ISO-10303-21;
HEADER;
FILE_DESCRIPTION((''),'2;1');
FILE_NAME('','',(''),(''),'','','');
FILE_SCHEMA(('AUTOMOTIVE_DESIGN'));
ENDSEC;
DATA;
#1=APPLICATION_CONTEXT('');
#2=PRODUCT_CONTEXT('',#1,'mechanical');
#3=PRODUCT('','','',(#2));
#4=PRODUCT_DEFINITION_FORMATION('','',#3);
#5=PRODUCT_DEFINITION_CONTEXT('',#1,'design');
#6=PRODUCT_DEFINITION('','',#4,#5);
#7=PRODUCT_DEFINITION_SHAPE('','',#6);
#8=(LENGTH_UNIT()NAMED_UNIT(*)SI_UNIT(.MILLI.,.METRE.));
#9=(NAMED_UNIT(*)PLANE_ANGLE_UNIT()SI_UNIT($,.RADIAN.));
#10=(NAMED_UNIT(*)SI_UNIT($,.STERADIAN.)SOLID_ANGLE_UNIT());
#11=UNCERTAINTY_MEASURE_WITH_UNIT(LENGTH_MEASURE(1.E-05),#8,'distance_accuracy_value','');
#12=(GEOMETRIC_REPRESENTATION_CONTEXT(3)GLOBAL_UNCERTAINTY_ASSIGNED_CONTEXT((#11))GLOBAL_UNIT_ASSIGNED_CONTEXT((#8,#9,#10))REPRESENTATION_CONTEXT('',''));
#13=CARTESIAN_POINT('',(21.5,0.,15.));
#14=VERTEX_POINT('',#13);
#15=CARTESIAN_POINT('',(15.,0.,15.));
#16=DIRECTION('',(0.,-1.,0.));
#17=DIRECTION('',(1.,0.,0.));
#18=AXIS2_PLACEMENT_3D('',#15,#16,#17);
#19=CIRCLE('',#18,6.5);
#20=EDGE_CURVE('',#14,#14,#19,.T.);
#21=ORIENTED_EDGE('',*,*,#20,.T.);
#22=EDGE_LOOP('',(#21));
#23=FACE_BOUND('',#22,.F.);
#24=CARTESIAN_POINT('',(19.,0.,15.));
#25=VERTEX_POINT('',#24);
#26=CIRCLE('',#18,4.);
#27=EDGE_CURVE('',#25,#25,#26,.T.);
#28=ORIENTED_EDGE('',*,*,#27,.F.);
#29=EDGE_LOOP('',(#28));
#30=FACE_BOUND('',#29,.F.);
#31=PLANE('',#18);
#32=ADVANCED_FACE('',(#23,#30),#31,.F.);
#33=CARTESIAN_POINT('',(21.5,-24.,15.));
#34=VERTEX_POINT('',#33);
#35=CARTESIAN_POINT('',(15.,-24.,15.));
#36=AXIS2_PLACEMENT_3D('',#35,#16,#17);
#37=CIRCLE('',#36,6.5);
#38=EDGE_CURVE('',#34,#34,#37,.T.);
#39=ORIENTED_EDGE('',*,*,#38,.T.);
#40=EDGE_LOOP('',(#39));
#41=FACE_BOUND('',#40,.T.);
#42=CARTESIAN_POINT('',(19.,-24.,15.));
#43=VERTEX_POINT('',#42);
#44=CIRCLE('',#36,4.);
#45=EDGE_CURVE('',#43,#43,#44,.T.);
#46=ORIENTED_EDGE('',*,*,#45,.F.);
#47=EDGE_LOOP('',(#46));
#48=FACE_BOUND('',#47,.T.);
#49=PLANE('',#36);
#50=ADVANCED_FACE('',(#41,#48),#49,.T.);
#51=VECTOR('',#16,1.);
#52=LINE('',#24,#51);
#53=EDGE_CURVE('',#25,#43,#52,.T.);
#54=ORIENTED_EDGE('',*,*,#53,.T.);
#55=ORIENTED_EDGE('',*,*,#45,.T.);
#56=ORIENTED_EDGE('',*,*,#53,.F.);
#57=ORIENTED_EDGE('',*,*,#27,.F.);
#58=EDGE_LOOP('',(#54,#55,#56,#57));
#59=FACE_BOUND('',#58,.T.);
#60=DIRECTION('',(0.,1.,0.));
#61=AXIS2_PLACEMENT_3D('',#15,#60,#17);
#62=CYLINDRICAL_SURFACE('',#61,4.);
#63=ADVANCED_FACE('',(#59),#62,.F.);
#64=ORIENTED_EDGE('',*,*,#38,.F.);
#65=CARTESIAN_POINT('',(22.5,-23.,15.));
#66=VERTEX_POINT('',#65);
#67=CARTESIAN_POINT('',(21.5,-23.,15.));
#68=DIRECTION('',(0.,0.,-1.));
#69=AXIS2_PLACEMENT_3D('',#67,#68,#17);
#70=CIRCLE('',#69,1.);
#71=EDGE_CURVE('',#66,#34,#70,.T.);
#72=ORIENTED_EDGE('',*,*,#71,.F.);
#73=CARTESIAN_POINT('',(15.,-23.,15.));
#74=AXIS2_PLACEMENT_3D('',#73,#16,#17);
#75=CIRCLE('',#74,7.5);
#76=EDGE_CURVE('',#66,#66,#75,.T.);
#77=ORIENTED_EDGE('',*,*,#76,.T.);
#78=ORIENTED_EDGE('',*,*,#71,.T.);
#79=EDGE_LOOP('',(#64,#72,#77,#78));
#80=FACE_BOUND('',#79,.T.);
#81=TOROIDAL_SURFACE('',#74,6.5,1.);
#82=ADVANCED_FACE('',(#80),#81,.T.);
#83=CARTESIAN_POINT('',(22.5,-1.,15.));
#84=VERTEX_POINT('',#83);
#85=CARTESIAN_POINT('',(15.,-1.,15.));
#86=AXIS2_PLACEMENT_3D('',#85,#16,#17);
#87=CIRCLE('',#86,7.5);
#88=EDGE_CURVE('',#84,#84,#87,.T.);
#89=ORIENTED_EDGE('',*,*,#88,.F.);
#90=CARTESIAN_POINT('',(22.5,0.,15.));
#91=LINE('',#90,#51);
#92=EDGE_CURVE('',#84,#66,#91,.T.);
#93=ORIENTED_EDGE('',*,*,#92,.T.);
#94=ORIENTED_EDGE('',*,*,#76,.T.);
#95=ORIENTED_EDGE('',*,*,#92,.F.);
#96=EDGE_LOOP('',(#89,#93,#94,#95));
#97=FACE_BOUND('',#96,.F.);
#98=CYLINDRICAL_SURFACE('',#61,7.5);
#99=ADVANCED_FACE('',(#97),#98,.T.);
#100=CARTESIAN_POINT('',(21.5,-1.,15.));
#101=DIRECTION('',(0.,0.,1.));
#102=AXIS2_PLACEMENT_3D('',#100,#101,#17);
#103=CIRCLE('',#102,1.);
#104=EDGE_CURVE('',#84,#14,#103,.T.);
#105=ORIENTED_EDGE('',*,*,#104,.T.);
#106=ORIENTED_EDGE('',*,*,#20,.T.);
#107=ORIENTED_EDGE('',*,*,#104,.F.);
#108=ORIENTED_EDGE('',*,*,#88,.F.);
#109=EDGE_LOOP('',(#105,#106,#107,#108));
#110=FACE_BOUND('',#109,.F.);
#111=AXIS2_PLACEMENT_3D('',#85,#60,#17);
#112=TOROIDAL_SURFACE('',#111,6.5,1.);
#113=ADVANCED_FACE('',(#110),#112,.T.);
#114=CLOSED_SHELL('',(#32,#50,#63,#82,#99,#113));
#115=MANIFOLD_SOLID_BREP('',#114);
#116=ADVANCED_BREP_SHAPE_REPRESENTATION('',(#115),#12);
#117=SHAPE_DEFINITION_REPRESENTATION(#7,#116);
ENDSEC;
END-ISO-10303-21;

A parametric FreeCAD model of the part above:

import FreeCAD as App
import Part
import Sketcher
Q = App.Units.Quantity


def edges_at(feature, points):
    """Names of the edges that pass closest to the given points."""
    edges = feature.Shape.Edges
    near = lambda p: min(range(len(edges)), key=lambda i: edges[i].distToShape(Part.Vertex(*p))[0])
    return sorted({f"Edge{near(p) + 1}" for p in points})

doc = App.newDocument("Part")
body = doc.addObject("PartDesign::Body", "Body")

sketch1 = body.newObject("Sketcher::SketchObject", "Sketch")
sketch1.AttachmentSupport = (doc.getObject("XZ_Plane"), [""])
sketch1.MapMode = "FlatFace"
sketch1.addGeometry(Part.Circle(App.Vector(15, 15, 0), App.Vector(0, 0, 1), 7.5), False)
sketch1.addGeometry(Part.Circle(App.Vector(15, 15, 0), App.Vector(0, 0, 1), 4), False)
sketch1.addConstraint(Sketcher.Constraint("Coincident", 1, 3, 0, 3))
sketch1.addConstraint(Sketcher.Constraint("Diameter", 0, Q("15 mm")))
sketch1.addConstraint(Sketcher.Constraint("Diameter", 1, Q("8 mm")))
sketch1.addConstraint(Sketcher.Constraint("DistanceX", -1, 1, 0, 3, Q("15 mm")))
sketch1.addConstraint(Sketcher.Constraint("DistanceY", -1, 1, 0, 3, Q("15 mm")))
pad1 = body.newObject("PartDesign::Pad", "Pad")
pad1.Profile = sketch1
pad1.Length = 24
doc.recompute()

fillet = body.newObject("PartDesign::Fillet", "Fillet")
fillet.Base = (pad1, edges_at(pad1, [(7.5, -24, 15), (7.5, 0, 15)]))
fillet.Radius = 1

doc.recompute()
